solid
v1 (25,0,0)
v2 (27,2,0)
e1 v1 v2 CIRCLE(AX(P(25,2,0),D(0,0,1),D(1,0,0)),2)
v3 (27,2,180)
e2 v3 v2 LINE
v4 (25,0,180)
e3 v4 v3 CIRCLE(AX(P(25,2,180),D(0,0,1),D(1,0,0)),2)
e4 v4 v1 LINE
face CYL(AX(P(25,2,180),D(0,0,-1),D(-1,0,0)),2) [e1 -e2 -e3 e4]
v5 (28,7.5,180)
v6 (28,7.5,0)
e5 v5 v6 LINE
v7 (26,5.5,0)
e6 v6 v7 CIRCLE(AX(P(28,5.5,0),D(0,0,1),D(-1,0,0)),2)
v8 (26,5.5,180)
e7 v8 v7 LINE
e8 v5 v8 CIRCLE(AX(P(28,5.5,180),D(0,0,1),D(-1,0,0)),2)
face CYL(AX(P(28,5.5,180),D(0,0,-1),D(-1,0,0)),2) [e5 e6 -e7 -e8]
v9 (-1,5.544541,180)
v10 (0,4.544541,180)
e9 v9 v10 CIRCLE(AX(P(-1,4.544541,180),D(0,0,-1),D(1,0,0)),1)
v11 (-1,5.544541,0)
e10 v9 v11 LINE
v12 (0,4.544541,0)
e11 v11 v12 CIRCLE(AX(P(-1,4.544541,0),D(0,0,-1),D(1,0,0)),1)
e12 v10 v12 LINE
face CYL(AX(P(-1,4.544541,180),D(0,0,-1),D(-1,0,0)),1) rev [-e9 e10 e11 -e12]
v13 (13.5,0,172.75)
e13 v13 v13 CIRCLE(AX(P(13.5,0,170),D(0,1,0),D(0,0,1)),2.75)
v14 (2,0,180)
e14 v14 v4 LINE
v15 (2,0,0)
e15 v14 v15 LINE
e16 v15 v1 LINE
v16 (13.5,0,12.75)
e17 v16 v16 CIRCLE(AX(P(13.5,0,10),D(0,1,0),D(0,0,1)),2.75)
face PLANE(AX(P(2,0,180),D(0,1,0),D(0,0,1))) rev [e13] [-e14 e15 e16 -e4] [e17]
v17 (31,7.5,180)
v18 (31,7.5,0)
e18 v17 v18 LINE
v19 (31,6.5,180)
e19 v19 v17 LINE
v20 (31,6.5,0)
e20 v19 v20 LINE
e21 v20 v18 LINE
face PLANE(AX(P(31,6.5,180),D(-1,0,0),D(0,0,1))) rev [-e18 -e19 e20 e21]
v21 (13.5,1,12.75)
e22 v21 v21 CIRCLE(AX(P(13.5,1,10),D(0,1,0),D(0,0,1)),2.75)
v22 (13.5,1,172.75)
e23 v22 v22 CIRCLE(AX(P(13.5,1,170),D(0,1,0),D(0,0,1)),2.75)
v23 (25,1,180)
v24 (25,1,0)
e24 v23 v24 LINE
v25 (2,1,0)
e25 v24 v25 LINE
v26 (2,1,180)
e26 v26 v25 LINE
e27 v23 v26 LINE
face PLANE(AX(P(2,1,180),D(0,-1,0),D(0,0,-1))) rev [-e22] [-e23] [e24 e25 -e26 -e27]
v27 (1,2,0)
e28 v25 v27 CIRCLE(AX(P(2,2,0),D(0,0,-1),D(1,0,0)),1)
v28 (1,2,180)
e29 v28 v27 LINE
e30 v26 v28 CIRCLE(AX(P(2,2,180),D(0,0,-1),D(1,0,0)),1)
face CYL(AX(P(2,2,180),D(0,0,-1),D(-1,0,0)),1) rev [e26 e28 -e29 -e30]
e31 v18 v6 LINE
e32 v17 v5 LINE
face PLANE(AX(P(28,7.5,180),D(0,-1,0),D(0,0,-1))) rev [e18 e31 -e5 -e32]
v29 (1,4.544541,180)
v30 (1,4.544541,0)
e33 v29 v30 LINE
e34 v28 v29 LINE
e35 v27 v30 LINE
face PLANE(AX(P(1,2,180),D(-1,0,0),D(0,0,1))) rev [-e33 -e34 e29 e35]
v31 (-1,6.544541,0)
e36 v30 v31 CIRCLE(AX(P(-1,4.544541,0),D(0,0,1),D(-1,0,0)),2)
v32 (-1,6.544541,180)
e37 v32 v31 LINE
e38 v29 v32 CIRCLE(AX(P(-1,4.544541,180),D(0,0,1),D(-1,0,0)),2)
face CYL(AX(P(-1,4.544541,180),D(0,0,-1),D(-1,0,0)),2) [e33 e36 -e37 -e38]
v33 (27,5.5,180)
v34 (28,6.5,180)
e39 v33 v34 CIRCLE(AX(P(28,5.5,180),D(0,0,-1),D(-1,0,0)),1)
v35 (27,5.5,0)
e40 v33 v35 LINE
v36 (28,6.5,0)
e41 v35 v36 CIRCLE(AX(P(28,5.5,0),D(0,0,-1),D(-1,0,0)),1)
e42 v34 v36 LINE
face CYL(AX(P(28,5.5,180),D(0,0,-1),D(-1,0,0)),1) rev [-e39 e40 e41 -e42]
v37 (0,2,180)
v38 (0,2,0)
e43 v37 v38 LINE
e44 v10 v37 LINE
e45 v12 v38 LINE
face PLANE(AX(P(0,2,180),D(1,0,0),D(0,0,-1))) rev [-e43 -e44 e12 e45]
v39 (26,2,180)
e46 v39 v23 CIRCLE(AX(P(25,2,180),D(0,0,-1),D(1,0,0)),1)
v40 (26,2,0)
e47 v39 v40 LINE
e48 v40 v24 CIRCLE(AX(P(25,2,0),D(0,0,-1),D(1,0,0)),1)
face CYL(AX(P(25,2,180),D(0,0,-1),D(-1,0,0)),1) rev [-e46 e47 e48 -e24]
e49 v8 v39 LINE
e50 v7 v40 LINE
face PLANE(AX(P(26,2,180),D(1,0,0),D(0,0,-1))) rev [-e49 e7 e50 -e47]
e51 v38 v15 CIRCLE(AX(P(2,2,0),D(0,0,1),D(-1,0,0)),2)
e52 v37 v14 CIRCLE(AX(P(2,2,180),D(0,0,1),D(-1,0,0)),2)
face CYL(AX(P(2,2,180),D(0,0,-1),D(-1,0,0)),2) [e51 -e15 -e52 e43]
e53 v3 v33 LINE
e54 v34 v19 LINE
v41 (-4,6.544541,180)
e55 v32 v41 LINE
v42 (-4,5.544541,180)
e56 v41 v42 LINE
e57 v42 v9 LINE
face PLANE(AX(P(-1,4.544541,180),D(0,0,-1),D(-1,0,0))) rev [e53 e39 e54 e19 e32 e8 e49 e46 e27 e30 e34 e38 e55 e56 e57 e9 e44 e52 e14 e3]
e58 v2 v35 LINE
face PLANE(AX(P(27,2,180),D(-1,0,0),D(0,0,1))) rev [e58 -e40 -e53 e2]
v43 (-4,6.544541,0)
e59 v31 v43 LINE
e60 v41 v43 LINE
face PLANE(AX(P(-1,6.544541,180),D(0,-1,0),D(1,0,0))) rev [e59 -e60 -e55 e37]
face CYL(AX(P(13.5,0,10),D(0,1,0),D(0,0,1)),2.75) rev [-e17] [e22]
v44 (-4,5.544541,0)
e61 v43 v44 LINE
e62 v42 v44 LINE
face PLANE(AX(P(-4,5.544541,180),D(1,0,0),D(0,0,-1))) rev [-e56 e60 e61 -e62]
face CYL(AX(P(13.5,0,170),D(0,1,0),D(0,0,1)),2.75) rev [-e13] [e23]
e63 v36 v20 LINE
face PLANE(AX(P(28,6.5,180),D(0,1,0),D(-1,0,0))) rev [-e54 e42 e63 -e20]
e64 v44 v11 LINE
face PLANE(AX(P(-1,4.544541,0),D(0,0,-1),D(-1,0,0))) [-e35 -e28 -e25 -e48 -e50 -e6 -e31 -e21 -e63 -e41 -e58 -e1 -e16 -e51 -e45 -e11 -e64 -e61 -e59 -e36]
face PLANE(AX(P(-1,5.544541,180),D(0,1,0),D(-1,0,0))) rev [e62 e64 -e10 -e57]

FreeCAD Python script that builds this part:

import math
import FreeCAD as App
import Part
import Sketcher

V = App.Vector

doc = App.newDocument("Part")
body = doc.addObject("PartDesign::Body", "Body")

# Sketch on XY plane
sketch1 = body.newObject("Sketcher::SketchObject", "Sketch")
sketch1.AttachmentSupport = (doc.getObject("XY_Plane"), [""])
sketch1.MapMode = "FlatFace"
sketch1.addGeometry([
    Part.LineSegment(V(2, 0, 0), V(25, 0, 0)),  # 0
    Part.ArcOfCircle(Part.Circle(V(25, 2, 0), V(0, 0, 1), 2), math.radians(-90), math.radians(0)),  # 1
    Part.LineSegment(V(27, 2, 0), V(27, 5.5, 0)),  # 2
    Part.ArcOfCircle(Part.Circle(V(28, 5.5, 0), V(0, 0, 1), 1), math.radians(90), math.radians(180)),  # 3
    Part.LineSegment(V(28, 6.5, 0), V(31, 6.5, 0)),  # 4
    Part.LineSegment(V(31, 6.5, 0), V(31, 7.5, 0)),  # 5
    Part.LineSegment(V(31, 7.5, 0), V(28, 7.5, 0)),  # 6
    Part.ArcOfCircle(Part.Circle(V(28, 5.5, 0), V(0, 0, 1), 2), math.radians(90), math.radians(180)),  # 7
    Part.LineSegment(V(26, 5.5, 0), V(26, 2, 0)),  # 8
    Part.ArcOfCircle(Part.Circle(V(25, 2, 0), V(0, 0, 1), 1), math.radians(-90), math.radians(0)),  # 9
    Part.LineSegment(V(25, 1, 0), V(2, 1, 0)),  # 10
    Part.ArcOfCircle(Part.Circle(V(2, 2, 0), V(0, 0, 1), 1), math.radians(-180), math.radians(-90)),  # 11
    Part.LineSegment(V(1, 2, 0), V(1, 4.5, 0)),  # 12
    Part.ArcOfCircle(Part.Circle(V(-1, 4.5, 0), V(0, 0, 1), 2), math.radians(0), math.radians(90)),  # 13
    Part.LineSegment(V(-1, 6.5, 0), V(-4, 6.5, 0)),  # 14
    Part.LineSegment(V(-4, 6.5, 0), V(-4, 5.5, 0)),  # 15
    Part.LineSegment(V(-4, 5.5, 0), V(-1, 5.5, 0)),  # 16
    Part.ArcOfCircle(Part.Circle(V(-1, 4.5, 0), V(0, 0, 1), 1), math.radians(0), math.radians(90)),  # 17
    Part.LineSegment(V(0, 4.5, 0), V(0, 2, 0)),  # 18
    Part.ArcOfCircle(Part.Circle(V(2, 2, 0), V(0, 0, 1), 2), math.radians(-180), math.radians(-90)),  # 19
], False)
sketch1.addConstraint([
    Sketcher.Constraint("Tangent", 0, 2, 1, 1),
    Sketcher.Constraint("Tangent", 1, 2, 2, 1),
    Sketcher.Constraint("Tangent", 2, 2, 3, 2),
    Sketcher.Constraint("Tangent", 3, 1, 4, 1),
    Sketcher.Constraint("Coincident", 4, 2, 5, 1),
    Sketcher.Constraint("Coincident", 5, 2, 6, 1),
    Sketcher.Constraint("Tangent", 6, 2, 7, 1),
    Sketcher.Constraint("Tangent", 7, 2, 8, 1),
    Sketcher.Constraint("Tangent", 8, 2, 9, 2),
    Sketcher.Constraint("Tangent", 9, 1, 10, 1),
    Sketcher.Constraint("Tangent", 10, 2, 11, 2),
    Sketcher.Constraint("Tangent", 11, 1, 12, 1),
    Sketcher.Constraint("Tangent", 12, 2, 13, 1),
    Sketcher.Constraint("Tangent", 13, 2, 14, 1),
    Sketcher.Constraint("Coincident", 14, 2, 15, 1),
    Sketcher.Constraint("Coincident", 15, 2, 16, 1),
    Sketcher.Constraint("Tangent", 16, 2, 17, 2),
    Sketcher.Constraint("Tangent", 17, 1, 18, 1),
    Sketcher.Constraint("Tangent", 18, 2, 19, 1),
    Sketcher.Constraint("Tangent", 19, 2, 0, 1),
    Sketcher.Constraint("Horizontal", 0),
    Sketcher.Constraint("Vertical", 2),
    Sketcher.Constraint("Horizontal", 4),
    Sketcher.Constraint("Vertical", 5),
    Sketcher.Constraint("Horizontal", 6),
    Sketcher.Constraint("Vertical", 8),
    Sketcher.Constraint("Horizontal", 10),
    Sketcher.Constraint("Vertical", 12),
    Sketcher.Constraint("Horizontal", 14),
    Sketcher.Constraint("Vertical", 15),
    Sketcher.Constraint("Horizontal", 16),
    Sketcher.Constraint("Vertical", 18),
    Sketcher.Constraint("Coincident", 7, 3, 3, 3),
    Sketcher.Constraint("Coincident", 9, 3, 1, 3),
    Sketcher.Constraint("Coincident", 17, 3, 13, 3),
    Sketcher.Constraint("Coincident", 19, 3, 11, 3),
    Sketcher.Constraint("Equal", 1, 7),
    Sketcher.Constraint("Equal", 9, 11),
    Sketcher.Constraint("Equal", 7, 13),
    Sketcher.Constraint("PointOnObject", 0, 2, -1),
    Sketcher.Constraint("PointOnObject", 17, 1, -2),
    Sketcher.Constraint("Equal", 6, 14),
    Sketcher.Constraint("Radius", 1, 2.0),
    Sketcher.Constraint("Radius", 3, 1.0),
    Sketcher.Constraint("DistanceX", 0, 1, 0, 2, 23.0),
    Sketcher.Constraint("DistanceX", 4, 1, 4, 2, 3.0),
    Sketcher.Constraint("DistanceY", 2, 1, 2, 2, 3.5),
    Sketcher.Constraint("DistanceY", 12, 1, 12, 2, 2.544541),
])
pad1 = body.newObject("PartDesign::Pad", "Pad")
pad1.Profile = sketch1
pad1.Length = 180

# Sketch on XZ plane
sketch2 = body.newObject("Sketcher::SketchObject", "Sketch001")
sketch2.AttachmentSupport = (doc.getObject("XZ_Plane"), [""])
sketch2.MapMode = "FlatFace"
sketch2.AttachmentOffset = App.Placement(V(0, 0, -1), App.Rotation())
sketch2.addGeometry([
    Part.Circle(V(13.5, 10, 0), V(0, 0, 1), 2.8),
    Part.Circle(V(13.5, 170, 0), V(0, 0, 1), 2.8),
], False)
sketch2.addConstraint([
    Sketcher.Constraint("Equal", 0, 1),
    Sketcher.Constraint("Vertical", 0, 3, 1, 3),
    Sketcher.Constraint("Diameter", 0, 5.5),
    Sketcher.Constraint("DistanceY", -1, 1, 0, 3, 10.0),
    Sketcher.Constraint("DistanceY", -1, 1, 1, 3, 170.0),
    Sketcher.Constraint("DistanceX", -1, 1, 0, 3, 13.5),
])
pocket1 = body.newObject("PartDesign::Pocket", "Pocket")
pocket1.Profile = sketch2
pocket1.Length = 1
pocket1.Reversed = True

doc.recompute()
